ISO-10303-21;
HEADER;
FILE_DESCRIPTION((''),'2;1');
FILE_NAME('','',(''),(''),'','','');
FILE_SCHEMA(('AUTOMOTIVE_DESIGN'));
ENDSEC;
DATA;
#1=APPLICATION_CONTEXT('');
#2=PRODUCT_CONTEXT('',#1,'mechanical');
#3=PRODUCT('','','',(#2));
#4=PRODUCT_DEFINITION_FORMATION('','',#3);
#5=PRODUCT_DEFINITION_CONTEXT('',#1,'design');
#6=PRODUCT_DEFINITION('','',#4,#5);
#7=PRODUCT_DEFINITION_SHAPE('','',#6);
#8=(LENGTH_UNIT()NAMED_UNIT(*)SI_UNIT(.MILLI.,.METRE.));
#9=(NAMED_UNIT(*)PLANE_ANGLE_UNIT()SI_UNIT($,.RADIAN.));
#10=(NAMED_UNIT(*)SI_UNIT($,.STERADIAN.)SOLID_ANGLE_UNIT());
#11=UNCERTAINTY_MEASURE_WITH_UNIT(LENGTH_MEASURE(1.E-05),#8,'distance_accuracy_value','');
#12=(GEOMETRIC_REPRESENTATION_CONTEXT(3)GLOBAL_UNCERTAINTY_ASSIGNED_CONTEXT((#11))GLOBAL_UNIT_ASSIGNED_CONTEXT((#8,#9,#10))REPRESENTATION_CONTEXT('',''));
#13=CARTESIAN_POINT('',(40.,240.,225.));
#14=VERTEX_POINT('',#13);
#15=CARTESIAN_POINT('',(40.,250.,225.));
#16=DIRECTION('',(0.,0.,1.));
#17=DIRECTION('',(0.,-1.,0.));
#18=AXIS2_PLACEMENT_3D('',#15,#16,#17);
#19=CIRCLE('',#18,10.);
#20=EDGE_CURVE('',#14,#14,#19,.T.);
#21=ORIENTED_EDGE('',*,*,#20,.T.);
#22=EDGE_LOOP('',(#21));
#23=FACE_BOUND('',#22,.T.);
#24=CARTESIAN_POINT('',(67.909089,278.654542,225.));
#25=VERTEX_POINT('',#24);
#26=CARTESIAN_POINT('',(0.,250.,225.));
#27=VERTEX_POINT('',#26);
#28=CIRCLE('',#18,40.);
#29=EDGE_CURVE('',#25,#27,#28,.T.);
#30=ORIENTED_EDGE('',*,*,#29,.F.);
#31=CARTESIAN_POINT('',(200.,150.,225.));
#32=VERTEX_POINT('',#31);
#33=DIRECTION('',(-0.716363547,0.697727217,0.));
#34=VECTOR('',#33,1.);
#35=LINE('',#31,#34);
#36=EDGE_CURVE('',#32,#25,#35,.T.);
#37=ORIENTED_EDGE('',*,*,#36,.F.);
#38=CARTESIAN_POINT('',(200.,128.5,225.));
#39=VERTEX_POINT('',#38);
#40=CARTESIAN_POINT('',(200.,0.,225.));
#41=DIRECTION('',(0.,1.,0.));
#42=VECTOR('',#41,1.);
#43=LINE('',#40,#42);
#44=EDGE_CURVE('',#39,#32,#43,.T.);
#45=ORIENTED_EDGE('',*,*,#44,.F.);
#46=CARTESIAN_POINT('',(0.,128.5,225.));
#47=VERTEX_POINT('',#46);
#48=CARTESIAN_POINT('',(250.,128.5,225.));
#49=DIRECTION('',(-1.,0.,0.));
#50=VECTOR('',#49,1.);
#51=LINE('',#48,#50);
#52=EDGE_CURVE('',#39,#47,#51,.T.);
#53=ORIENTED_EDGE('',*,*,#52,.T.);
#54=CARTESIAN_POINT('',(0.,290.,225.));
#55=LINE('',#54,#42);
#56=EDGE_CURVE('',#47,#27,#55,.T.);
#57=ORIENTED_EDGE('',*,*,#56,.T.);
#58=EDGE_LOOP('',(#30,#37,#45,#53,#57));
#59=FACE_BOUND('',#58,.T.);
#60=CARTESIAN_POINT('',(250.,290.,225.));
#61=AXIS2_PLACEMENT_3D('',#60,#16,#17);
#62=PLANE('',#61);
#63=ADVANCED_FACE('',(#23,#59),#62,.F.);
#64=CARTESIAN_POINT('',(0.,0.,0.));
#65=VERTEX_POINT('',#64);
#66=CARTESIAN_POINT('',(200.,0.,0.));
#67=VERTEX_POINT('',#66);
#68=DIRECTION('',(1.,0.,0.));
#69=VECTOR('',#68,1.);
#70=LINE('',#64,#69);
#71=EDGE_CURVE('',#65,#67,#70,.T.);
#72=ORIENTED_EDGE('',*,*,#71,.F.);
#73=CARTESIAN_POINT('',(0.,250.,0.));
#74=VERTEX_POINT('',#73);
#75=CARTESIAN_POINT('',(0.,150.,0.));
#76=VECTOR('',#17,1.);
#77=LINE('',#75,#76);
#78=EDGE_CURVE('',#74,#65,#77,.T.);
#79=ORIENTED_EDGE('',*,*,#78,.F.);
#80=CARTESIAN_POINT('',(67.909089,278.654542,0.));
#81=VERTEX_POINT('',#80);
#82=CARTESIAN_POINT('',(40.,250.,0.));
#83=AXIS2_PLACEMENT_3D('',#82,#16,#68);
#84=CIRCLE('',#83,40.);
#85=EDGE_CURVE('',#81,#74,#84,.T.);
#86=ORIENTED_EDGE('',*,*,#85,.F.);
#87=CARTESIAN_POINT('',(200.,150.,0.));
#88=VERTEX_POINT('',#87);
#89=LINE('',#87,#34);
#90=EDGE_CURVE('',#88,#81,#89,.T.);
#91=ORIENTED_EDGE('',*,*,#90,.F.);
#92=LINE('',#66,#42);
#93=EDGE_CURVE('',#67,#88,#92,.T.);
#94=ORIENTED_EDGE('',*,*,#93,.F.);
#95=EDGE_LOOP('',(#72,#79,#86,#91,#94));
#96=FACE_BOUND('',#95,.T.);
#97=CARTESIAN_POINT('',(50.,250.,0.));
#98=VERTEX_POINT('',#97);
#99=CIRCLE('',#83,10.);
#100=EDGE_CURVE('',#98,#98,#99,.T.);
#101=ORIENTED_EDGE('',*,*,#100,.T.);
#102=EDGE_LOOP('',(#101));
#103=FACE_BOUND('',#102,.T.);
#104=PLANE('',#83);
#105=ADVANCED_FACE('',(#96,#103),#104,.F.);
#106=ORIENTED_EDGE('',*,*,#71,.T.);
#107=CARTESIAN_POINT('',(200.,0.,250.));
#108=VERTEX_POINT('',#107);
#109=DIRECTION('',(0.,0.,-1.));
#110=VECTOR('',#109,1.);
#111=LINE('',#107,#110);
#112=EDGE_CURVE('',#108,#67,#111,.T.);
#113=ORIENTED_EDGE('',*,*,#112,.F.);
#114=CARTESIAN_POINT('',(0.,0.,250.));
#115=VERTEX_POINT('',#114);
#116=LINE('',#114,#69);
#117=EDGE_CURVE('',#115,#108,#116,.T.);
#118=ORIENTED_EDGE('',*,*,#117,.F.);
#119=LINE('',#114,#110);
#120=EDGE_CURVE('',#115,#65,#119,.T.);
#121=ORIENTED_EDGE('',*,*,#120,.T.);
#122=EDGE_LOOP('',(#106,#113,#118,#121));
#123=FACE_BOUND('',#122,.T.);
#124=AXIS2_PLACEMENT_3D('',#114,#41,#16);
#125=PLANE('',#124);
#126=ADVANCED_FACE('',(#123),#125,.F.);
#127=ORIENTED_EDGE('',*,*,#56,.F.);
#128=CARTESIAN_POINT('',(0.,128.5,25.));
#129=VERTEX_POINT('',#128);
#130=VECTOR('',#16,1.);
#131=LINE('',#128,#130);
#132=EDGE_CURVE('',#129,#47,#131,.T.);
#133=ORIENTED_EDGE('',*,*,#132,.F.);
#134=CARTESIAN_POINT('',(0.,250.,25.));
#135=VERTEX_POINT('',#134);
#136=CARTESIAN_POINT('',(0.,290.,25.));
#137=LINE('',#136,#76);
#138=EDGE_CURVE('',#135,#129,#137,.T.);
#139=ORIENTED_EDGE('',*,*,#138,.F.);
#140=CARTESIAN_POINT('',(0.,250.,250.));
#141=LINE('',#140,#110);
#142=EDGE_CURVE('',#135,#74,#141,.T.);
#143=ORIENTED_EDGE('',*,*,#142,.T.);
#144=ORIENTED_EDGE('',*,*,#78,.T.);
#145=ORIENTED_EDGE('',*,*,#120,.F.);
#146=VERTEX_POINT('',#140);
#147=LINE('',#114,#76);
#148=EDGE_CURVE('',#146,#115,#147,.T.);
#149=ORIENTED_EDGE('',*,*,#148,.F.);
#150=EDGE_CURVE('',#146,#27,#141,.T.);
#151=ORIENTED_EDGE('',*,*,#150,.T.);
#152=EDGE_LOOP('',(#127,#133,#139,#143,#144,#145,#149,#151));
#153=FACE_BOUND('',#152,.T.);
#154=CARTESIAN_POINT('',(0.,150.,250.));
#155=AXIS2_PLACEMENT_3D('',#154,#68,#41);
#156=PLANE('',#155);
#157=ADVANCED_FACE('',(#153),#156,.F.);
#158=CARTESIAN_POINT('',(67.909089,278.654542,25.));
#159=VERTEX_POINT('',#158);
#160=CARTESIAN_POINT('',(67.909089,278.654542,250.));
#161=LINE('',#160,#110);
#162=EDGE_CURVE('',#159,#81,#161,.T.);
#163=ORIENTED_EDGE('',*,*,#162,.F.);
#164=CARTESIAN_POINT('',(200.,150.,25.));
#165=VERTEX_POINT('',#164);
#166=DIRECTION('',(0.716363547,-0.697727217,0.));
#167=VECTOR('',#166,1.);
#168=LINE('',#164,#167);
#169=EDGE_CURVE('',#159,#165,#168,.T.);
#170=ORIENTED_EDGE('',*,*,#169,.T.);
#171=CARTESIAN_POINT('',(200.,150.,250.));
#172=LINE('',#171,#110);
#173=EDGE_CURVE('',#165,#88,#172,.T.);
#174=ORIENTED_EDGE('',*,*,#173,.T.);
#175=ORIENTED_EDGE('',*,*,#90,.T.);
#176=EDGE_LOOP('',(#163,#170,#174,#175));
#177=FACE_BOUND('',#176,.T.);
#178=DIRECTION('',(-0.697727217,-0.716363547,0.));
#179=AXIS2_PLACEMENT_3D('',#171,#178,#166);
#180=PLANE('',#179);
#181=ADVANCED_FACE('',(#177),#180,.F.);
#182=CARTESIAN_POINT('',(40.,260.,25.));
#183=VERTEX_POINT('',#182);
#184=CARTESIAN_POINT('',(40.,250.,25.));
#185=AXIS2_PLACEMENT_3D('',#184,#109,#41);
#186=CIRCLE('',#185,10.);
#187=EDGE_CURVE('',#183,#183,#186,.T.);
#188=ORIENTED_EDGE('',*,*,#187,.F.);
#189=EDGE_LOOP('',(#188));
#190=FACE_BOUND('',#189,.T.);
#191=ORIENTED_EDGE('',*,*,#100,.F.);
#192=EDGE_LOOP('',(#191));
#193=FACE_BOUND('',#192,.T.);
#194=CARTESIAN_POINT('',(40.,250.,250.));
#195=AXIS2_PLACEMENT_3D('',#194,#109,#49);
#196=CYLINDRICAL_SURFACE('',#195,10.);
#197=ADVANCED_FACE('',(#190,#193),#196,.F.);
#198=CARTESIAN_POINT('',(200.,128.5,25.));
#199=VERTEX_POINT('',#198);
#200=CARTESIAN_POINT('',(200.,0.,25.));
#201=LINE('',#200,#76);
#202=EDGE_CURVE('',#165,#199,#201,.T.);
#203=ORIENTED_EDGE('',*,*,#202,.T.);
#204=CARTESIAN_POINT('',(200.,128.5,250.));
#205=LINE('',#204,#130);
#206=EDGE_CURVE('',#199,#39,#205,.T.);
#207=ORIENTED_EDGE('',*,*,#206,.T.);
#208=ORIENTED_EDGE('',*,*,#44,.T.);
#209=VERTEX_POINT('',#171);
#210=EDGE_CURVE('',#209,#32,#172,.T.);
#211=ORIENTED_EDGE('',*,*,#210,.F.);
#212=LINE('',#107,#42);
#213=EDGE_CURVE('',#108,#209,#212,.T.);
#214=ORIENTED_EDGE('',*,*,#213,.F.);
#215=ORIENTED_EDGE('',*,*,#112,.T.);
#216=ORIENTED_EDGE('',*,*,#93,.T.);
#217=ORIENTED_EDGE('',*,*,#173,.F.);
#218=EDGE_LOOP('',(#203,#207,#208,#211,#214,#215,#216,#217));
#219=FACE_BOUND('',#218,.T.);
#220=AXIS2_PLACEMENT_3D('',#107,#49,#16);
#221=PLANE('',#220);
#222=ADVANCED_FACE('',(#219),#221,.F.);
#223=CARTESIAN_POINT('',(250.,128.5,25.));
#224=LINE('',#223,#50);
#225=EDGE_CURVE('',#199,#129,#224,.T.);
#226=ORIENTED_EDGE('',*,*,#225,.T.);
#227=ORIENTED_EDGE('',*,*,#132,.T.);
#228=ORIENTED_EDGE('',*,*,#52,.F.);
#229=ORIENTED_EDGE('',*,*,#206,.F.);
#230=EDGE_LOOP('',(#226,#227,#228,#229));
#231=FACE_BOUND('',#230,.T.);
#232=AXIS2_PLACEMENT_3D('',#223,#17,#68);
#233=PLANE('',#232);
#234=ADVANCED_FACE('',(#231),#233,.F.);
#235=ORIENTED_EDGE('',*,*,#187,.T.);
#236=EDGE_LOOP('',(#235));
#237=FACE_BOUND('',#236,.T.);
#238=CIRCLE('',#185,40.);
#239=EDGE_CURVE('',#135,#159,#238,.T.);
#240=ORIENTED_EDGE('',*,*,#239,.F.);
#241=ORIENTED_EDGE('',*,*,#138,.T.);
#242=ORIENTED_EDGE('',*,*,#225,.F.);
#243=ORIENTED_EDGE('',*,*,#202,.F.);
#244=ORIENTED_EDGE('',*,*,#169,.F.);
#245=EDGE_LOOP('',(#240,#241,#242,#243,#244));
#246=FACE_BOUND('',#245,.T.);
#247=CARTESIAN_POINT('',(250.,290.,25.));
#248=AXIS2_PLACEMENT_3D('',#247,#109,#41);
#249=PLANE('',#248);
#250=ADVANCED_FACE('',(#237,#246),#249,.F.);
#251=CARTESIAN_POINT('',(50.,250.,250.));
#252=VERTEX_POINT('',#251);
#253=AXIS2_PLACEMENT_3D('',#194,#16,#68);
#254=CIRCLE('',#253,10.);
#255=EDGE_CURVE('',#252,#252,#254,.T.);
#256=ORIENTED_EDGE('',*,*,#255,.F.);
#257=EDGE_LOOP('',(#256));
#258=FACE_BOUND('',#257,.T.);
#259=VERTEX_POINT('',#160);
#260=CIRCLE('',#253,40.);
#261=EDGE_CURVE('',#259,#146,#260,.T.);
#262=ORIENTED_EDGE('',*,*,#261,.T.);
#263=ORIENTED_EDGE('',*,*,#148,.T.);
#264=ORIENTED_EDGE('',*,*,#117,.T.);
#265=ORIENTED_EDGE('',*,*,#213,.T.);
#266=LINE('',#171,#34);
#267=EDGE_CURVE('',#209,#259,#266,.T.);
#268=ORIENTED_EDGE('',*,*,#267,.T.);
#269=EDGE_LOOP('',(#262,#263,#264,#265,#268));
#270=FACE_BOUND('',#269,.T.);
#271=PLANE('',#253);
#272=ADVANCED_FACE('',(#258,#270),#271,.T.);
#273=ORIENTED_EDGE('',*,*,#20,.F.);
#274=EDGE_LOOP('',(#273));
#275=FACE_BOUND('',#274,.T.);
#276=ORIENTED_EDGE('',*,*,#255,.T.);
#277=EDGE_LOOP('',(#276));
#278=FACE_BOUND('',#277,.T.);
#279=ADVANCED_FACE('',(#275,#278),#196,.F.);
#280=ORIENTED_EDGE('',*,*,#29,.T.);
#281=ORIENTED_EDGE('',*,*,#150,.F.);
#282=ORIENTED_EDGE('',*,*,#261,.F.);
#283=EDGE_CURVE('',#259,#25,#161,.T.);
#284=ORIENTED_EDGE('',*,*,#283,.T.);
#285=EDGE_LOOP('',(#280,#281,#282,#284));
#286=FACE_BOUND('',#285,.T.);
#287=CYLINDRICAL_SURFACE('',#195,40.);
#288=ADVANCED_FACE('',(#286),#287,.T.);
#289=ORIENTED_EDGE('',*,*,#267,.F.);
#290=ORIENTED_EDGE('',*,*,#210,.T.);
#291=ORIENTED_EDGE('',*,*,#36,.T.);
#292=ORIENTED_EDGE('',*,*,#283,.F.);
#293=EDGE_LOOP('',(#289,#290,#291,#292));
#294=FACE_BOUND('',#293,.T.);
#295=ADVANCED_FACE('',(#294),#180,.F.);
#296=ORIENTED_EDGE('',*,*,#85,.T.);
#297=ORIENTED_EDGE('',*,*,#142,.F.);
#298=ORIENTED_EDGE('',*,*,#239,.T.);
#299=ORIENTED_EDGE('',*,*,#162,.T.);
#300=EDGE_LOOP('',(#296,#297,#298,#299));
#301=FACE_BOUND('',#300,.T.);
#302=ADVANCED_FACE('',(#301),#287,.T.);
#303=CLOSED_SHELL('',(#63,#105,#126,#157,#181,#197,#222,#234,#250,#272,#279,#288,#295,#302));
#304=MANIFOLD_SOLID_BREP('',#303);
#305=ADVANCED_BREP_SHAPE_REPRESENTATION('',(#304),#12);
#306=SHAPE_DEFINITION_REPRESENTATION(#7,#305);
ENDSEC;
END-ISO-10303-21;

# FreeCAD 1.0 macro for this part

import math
import FreeCAD as App
import Part
import Sketcher
from FreeCAD import Vector

doc = App.newDocument("Part")
params = doc.addObject("Spreadsheet::Sheet", "Params")
for row, (alias, value) in enumerate([
    ("sketch1_diameter", "20 mm"),
    ("sketch1_radius", "40 mm"),
    ("sketch1_width", "200 mm"),
    ("sketch1_height", "250 mm"),
    ("sketch1_height2", "150 mm"),
    ("pad1_length", "250 mm"),
    ("sketch2_height", "200 mm"),
    ("sketch2_width", "161.5 mm"),
    ("pocket1_length", "250 mm"),
], start=1):
    params.set(f"A{row}", alias)
    params.set(f"B{row}", "=" + value)
    params.setAlias(f"B{row}", alias)

body = doc.addObject("PartDesign::Body", "Body")

# Sketch on XY plane
sketch1 = body.newObject("Sketcher::SketchObject", "Sketch")
sketch1.AttachmentSupport = (doc.getObject("XY_Plane"), [""])
sketch1.MapMode = "FlatFace"
sketch1.addGeometry([
    Part.ArcOfCircle(Part.Circle(Vector(40, 250, 0), Vector(0, 0, 1), 40), math.radians(45.755058), math.radians(180)),  # 0
    Part.LineSegment(Vector(0, 250, 0), Vector(0, 0, 0)),  # 1
    Part.LineSegment(Vector(0, 0, 0), Vector(200, 0, 0)),  # 2
    Part.LineSegment(Vector(200, 0, 0), Vector(200, 150, 0)),  # 3
    Part.LineSegment(Vector(200, 150, 0), Vector(67.909089, 278.654542, 0)),  # 4
    Part.Circle(Vector(40, 250, 0), Vector(0, 0, 1), 10),  # 5
], False)
sketch1.addConstraint([
    Sketcher.Constraint("Tangent", 0, 2, 1, 1),
    Sketcher.Constraint("Coincident", 1, 2, 2, 1),
    Sketcher.Constraint("Coincident", 2, 2, 3, 1),
    Sketcher.Constraint("Coincident", 3, 2, 4, 1),
    Sketcher.Constraint("Tangent", 4, 2, 0, 1),
    Sketcher.Constraint("Vertical", 1),
    Sketcher.Constraint("Horizontal", 2),
    Sketcher.Constraint("Vertical", 3),
    Sketcher.Constraint("Coincident", 1, 2, -1, 1),
    Sketcher.Constraint("Coincident", 5, 3, 0, 3),
    Sketcher.Constraint("Diameter", 5, 20.0),
    Sketcher.Constraint("Radius", 0, 40.0),
    Sketcher.Constraint("DistanceX", 2, 1, 2, 2, 200.0),
    Sketcher.Constraint("DistanceY", 1, 2, 1, 1, 250.0),
    Sketcher.Constraint("DistanceY", 3, 1, 3, 2, 150.0),
])
sketch1.setExpression("Constraints[10]", "Params.sketch1_diameter")
sketch1.setExpression("Constraints[11]", "Params.sketch1_radius")
sketch1.setExpression("Constraints[12]", "Params.sketch1_width")
sketch1.setExpression("Constraints[13]", "Params.sketch1_height")
sketch1.setExpression("Constraints[14]", "Params.sketch1_height2")
pad1 = body.newObject("PartDesign::Pad", "Pad")
pad1.Profile = sketch1
pad1.setExpression("Length", "Params.pad1_length")

# Sketch on YZ plane
sketch2 = body.newObject("Sketcher::SketchObject", "Sketch001")
sketch2.AttachmentSupport = (doc.getObject("YZ_Plane"), [""])
sketch2.MapMode = "FlatFace"
sketch2.addGeometry([
    Part.LineSegment(Vector(290, 25, 0), Vector(128.5, 25, 0)),
    Part.LineSegment(Vector(128.5, 25, 0), Vector(128.5, 225, 0)),
    Part.LineSegment(Vector(128.5, 225, 0), Vector(290, 225, 0)),
    Part.LineSegment(Vector(290, 225, 0), Vector(290, 25, 0)),
], False)
sketch2.addConstraint([
    Sketcher.Constraint("Coincident", 0, 2, 1, 1),
    Sketcher.Constraint("Coincident", 1, 2, 2, 1),
    Sketcher.Constraint("Coincident", 2, 2, 3, 1),
    Sketcher.Constraint("Coincident", 3, 2, 0, 1),
    Sketcher.Constraint("Horizontal", 0),
    Sketcher.Constraint("Vertical", 1),
    Sketcher.Constraint("Horizontal", 2),
    Sketcher.Constraint("Vertical", 3),
    Sketcher.Constraint("DistanceY", 1, 1, 1, 2, 200.0),
    Sketcher.Constraint("DistanceX", 0, 2, 0, 1, 161.5),
    Sketcher.Constraint("DistanceY", -1, 1, 0, 2, 25.0),
    Sketcher.Constraint("DistanceX", -1, 1, 2, 2, 290.0),
])
sketch2.setExpression("Constraints[8]", "Params.sketch2_height")
sketch2.setExpression("Constraints[9]", "Params.sketch2_width")
pocket1 = body.newObject("PartDesign::Pocket", "Pocket")
pocket1.Profile = sketch2
pocket1.setExpression("Length", "Params.pocket1_length")
pocket1.Reversed = True

doc.recompute()
